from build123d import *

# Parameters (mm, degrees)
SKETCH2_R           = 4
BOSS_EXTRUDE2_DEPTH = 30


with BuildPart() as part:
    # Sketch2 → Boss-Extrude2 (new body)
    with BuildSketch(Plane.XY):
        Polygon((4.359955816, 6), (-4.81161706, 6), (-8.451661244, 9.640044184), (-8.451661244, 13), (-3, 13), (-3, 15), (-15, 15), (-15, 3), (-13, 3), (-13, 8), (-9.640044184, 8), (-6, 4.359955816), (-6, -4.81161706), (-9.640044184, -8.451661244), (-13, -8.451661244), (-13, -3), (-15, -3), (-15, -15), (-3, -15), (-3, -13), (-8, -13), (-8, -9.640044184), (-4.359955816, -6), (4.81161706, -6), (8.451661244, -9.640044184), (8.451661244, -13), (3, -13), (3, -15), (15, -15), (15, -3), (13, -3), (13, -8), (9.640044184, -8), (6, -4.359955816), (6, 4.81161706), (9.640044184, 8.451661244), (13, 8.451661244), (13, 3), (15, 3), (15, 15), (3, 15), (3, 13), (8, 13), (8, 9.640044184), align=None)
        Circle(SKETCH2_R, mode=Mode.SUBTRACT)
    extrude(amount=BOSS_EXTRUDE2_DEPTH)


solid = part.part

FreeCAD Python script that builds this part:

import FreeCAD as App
import Part
import Sketcher

V = App.Vector

doc = App.newDocument("Part")
body = doc.addObject("PartDesign::Body", "Body")

sketch1 = body.newObject("Sketcher::SketchObject", "Sketch")
sketch1.AttachmentSupport = (doc.getObject("XY_Plane"), [""])
sketch1.MapMode = "FlatFace"
sketch1.addGeometry([
    Part.LineSegment(V(4.4, 6, 0), V(-4.8, 6, 0)),
    Part.LineSegment(V(-4.8, 6, 0), V(-8.5, 9.6, 0)),
    Part.LineSegment(V(-8.5, 9.6, 0), V(-8.5, 13, 0)),
    Part.LineSegment(V(-8.5, 13, 0), V(-3, 13, 0)),
    Part.LineSegment(V(-3, 13, 0), V(-3, 15, 0)),
    Part.LineSegment(V(-3, 15, 0), V(-15, 15, 0)),
    Part.LineSegment(V(-15, 15, 0), V(-15, 3, 0)),
    Part.LineSegment(V(-15, 3, 0), V(-13, 3, 0)),
    Part.LineSegment(V(-13, 3, 0), V(-13, 8, 0)),
    Part.LineSegment(V(-13, 8, 0), V(-9.6, 8, 0)),
    Part.LineSegment(V(-9.6, 8, 0), V(-6, 4.4, 0)),
    Part.LineSegment(V(-6, 4.4, 0), V(-6, -4.8, 0)),
    Part.LineSegment(V(-6, -4.8, 0), V(-9.6, -8.5, 0)),
    Part.LineSegment(V(-9.6, -8.5, 0), V(-13, -8.5, 0)),
    Part.LineSegment(V(-13, -8.5, 0), V(-13, -3, 0)),
    Part.LineSegment(V(-13, -3, 0), V(-15, -3, 0)),
    Part.LineSegment(V(-15, -3, 0), V(-15, -15, 0)),
    Part.LineSegment(V(-15, -15, 0), V(-3, -15, 0)),
    Part.LineSegment(V(-3, -15, 0), V(-3, -13, 0)),
    Part.LineSegment(V(-3, -13, 0), V(-8, -13, 0)),
    Part.LineSegment(V(-8, -13, 0), V(-8, -9.6, 0)),
    Part.LineSegment(V(-8, -9.6, 0), V(-4.4, -6, 0)),
    Part.LineSegment(V(-4.4, -6, 0), V(4.8, -6, 0)),
    Part.LineSegment(V(4.8, -6, 0), V(8.5, -9.6, 0)),
    Part.LineSegment(V(8.5, -9.6, 0), V(8.5, -13, 0)),
    Part.LineSegment(V(8.5, -13, 0), V(3, -13, 0)),
    Part.LineSegment(V(3, -13, 0), V(3, -15, 0)),
    Part.LineSegment(V(3, -15, 0), V(15, -15, 0)),
    Part.LineSegment(V(15, -15, 0), V(15, -3, 0)),
    Part.LineSegment(V(15, -3, 0), V(13, -3, 0)),
    Part.LineSegment(V(13, -3, 0), V(13, -8, 0)),
    Part.LineSegment(V(13, -8, 0), V(9.6, -8, 0)),
    Part.LineSegment(V(9.6, -8, 0), V(6, -4.4, 0)),
    Part.LineSegment(V(6, -4.4, 0), V(6, 4.8, 0)),
    Part.LineSegment(V(6, 4.8, 0), V(9.6, 8.5, 0)),
    Part.LineSegment(V(9.6, 8.5, 0), V(13, 8.5, 0)),
    Part.LineSegment(V(13, 8.5, 0), V(13, 3, 0)),
    Part.LineSegment(V(13, 3, 0), V(15, 3, 0)),
    Part.LineSegment(V(15, 3, 0), V(15, 15, 0)),
    Part.LineSegment(V(15, 15, 0), V(3, 15, 0)),
    Part.LineSegment(V(3, 15, 0), V(3, 13, 0)),
    Part.LineSegment(V(3, 13, 0), V(8, 13, 0)),
    Part.LineSegment(V(8, 13, 0), V(8, 9.6, 0)),
    Part.LineSegment(V(8, 9.6, 0), V(4.4, 6, 0)),
    Part.Circle(V(0, 0, 0), V(0, 0, 1), 4),
], False)
sketch1.addConstraint([
    Sketcher.Constraint("Coincident", 0, 2, 1, 1),
    Sketcher.Constraint("Coincident", 1, 2, 2, 1),
    Sketcher.Constraint("Coincident", 2, 2, 3, 1),
    Sketcher.Constraint("Coincident", 3, 2, 4, 1),
    Sketcher.Constraint("Coincident", 4, 2, 5, 1),
    Sketcher.Constraint("Coincident", 5, 2, 6, 1),
    Sketcher.Constraint("Coincident", 6, 2, 7, 1),
    Sketcher.Constraint("Coincident", 7, 2, 8, 1),
    Sketcher.Constraint("Coincident", 8, 2, 9, 1),
    Sketcher.Constraint("Coincident", 9, 2, 10, 1),
    Sketcher.Constraint("Coincident", 10, 2, 11, 1),
    Sketcher.Constraint("Coincident", 11, 2, 12, 1),
    Sketcher.Constraint("Coincident", 12, 2, 13, 1),
    Sketcher.Constraint("Coincident", 13, 2, 14, 1),
    Sketcher.Constraint("Coincident", 14, 2, 15, 1),
    Sketcher.Constraint("Coincident", 15, 2, 16, 1),
    Sketcher.Constraint("Coincident", 16, 2, 17, 1),
    Sketcher.Constraint("Coincident", 17, 2, 18, 1),
    Sketcher.Constraint("Coincident", 18, 2, 19, 1),
    Sketcher.Constraint("Coincident", 19, 2, 20, 1),
    Sketcher.Constraint("Coincident", 20, 2, 21, 1),
    Sketcher.Constraint("Coincident", 21, 2, 22, 1),
    Sketcher.Constraint("Coincident", 22, 2, 23, 1),
    Sketcher.Constraint("Coincident", 23, 2, 24, 1),
    Sketcher.Constraint("Coincident", 24, 2, 25, 1),
    Sketcher.Constraint("Coincident", 25, 2, 26, 1),
    Sketcher.Constraint("Coincident", 26, 2, 27, 1),
    Sketcher.Constraint("Coincident", 27, 2, 28, 1),
    Sketcher.Constraint("Coincident", 28, 2, 29, 1),
    Sketcher.Constraint("Coincident", 29, 2, 30, 1),
    Sketcher.Constraint("Coincident", 30, 2, 31, 1),
    Sketcher.Constraint("Coincident", 31, 2, 32, 1),
    Sketcher.Constraint("Coincident", 32, 2, 33, 1),
    Sketcher.Constraint("Coincident", 33, 2, 34, 1),
    Sketcher.Constraint("Coincident", 34, 2, 35, 1),
    Sketcher.Constraint("Coincident", 35, 2, 36, 1),
    Sketcher.Constraint("Coincident", 36, 2, 37, 1),
    Sketcher.Constraint("Coincident", 37, 2, 38, 1),
    Sketcher.Constraint("Coincident", 38, 2, 39, 1),
    Sketcher.Constraint("Coincident", 39, 2, 40, 1),
    Sketcher.Constraint("Coincident", 40, 2, 41, 1),
    Sketcher.Constraint("Coincident", 41, 2, 42, 1),
    Sketcher.Constraint("Coincident", 42, 2, 43, 1),
    Sketcher.Constraint("Coincident", 43, 2, 0, 1),
    Sketcher.Constraint("Horizontal", 0),
    Sketcher.Constraint("Vertical", 2),
    Sketcher.Constraint("Horizontal", 3),
    Sketcher.Constraint("Vertical", 4),
    Sketcher.Constraint("Horizontal", 5),
    Sketcher.Constraint("Vertical", 6),
    Sketcher.Constraint("Horizontal", 7),
    Sketcher.Constraint("Vertical", 8),
    Sketcher.Constraint("Horizontal", 9),
    Sketcher.Constraint("Vertical", 11),
    Sketcher.Constraint("Horizontal", 13),
    Sketcher.Constraint("Vertical", 14),
    Sketcher.Constraint("Horizontal", 15),
    Sketcher.Constraint("Vertical", 16),
    Sketcher.Constraint("Horizontal", 17),
    Sketcher.Constraint("Vertical", 18),
    Sketcher.Constraint("Horizontal", 19),
    Sketcher.Constraint("Vertical", 20),
    Sketcher.Constraint("Horizontal", 22),
    Sketcher.Constraint("Vertical", 24),
    Sketcher.Constraint("Horizontal", 25),
    Sketcher.Constraint("Vertical", 26),
    Sketcher.Constraint("Horizontal", 27),
    Sketcher.Constraint("Vertical", 28),
    Sketcher.Constraint("Horizontal", 29),
    Sketcher.Constraint("Vertical", 30),
    Sketcher.Constraint("Horizontal", 31),
    Sketcher.Constraint("Vertical", 33),
    Sketcher.Constraint("Horizontal", 35),
    Sketcher.Constraint("Vertical", 36),
    Sketcher.Constraint("Horizontal", 37),
    Sketcher.Constraint("Vertical", 38),
    Sketcher.Constraint("Horizontal", 39),
    Sketcher.Constraint("Vertical", 40),
    Sketcher.Constraint("Horizontal", 41),
    Sketcher.Constraint("Vertical", 42),
    Sketcher.Constraint("Coincident", 44, 3, -1, 1),
    Sketcher.Constraint("Symmetric", 0, 2, 22, 2, -1, 1),
    Sketcher.Constraint("Symmetric", 1, 2, 23, 2, -1, 1),
    Sketcher.Constraint("Symmetric", 3, 2, 25, 2, -1, 1),
    Sketcher.Constraint("Symmetric", 5, 2, 27, 2, -1, 1),
    Sketcher.Constraint("Symmetric", 7, 2, 29, 2, -1, 1),
    Sketcher.Constraint("Symmetric", 9, 2, 31, 2, -1, 1),
    Sketcher.Constraint("Symmetric", 10, 2, 32, 2, -1, 1),
    Sketcher.Constraint("Symmetric", 12, 2, 34, 2, -1, 1),
    Sketcher.Constraint("Symmetric", 14, 2, 36, 2, -1, 1),
    Sketcher.Constraint("Symmetric", 16, 2, 38, 2, -1, 1),
    Sketcher.Constraint("Symmetric", 18, 2, 40, 2, -1, 1),
    Sketcher.Constraint("Symmetric", 20, 2, 42, 2, -1, 1),
    Sketcher.Constraint("Symmetric", 18, 2, 25, 2, -2),
    Sketcher.Constraint("Symmetric", 16, 2, 27, 2, -2),
    Sketcher.Constraint("Symmetric", 14, 2, 29, 2, -2),
    Sketcher.Constraint("Parallel", 1, 10),
    Sketcher.Constraint("Perpendicular", 10, 12),
    Sketcher.Constraint("Parallel", 12, 21),
    Sketcher.Constraint("Perpendicular", 32, 34),
    Sketcher.Constraint("Parallel", 34, 43),
    Sketcher.Constraint("Horizontal", 20, 2, 23, 2),
    Sketcher.Constraint("Vertical", 9, 2, 12, 2),
    Sketcher.Constraint("Equal", 35, 2),
    Sketcher.Constraint("Equal", 37, 4),
    Sketcher.Constraint("Equal", 39, 6),
    Sketcher.Constraint("Equal", 41, 8),
    Sketcher.Constraint("Equal", 22, 11),
    Sketcher.Constraint("Equal", 25, 14),
    Sketcher.Constraint("Equal", 1, 10),
    Sketcher.Constraint("Equal", 10, 12),
    Sketcher.Constraint("Diameter", 44, 8.0),
    Sketcher.Constraint("DistanceX", 5, 2, 5, 1, 12.0),
    Sketcher.Constraint("DistanceX", 7, 1, 7, 2, 2.0),
    Sketcher.Constraint("DistanceX", 19, 2, 19, 1, 5.0),
    Sketcher.Constraint("DistanceY", -1, 1, 0, 2, 6.0),
    Sketcher.Constraint("DistanceY", -1, 1, 2, 2, 13.0),
    Sketcher.Constraint("Distance", 1, 5.1478),
    Sketcher.Constraint("DistanceX", 3, 1, 3, 2, 5.451661),
])
pad1 = body.newObject("PartDesign::Pad", "Pad")
pad1.Profile = sketch1
pad1.Length = 30

doc.recompute()
